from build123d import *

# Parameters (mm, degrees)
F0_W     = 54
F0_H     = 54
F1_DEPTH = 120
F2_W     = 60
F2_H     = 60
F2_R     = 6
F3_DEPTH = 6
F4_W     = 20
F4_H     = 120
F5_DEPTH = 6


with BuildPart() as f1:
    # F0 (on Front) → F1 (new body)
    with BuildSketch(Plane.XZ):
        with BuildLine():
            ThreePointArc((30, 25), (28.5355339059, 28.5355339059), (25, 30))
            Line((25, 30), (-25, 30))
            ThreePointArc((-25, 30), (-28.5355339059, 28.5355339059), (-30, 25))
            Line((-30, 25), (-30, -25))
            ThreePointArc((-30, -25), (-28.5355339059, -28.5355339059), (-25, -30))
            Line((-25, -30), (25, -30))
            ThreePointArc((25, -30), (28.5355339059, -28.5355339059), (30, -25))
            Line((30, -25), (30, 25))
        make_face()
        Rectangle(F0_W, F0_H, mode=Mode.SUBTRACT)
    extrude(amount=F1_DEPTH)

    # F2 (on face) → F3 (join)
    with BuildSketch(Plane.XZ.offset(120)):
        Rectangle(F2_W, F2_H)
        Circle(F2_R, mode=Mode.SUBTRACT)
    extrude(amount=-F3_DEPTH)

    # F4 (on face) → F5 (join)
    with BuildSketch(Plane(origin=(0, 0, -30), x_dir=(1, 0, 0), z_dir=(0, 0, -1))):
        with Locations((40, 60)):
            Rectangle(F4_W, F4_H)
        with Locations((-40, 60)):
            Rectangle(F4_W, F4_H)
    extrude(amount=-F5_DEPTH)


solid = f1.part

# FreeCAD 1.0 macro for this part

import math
import FreeCAD as App
import Part
import Sketcher
from FreeCAD import Vector
Q = App.Units.Quantity

doc = App.newDocument("Part")
body = doc.addObject("PartDesign::Body", "Body")

# Sketch on XZ plane
sketch1 = body.newObject("Sketcher::SketchObject", "Sketch")
sketch1.AttachmentSupport = (doc.getObject("XZ_Plane"), [""])
sketch1.MapMode = "FlatFace"
sketch1.addGeometry(Part.ArcOfCircle(Part.Circle(Vector(25, 25, 0), Vector(0, 0, 1), 5), math.radians(0), math.radians(90)), False)
sketch1.addGeometry(Part.LineSegment(Vector(25, 30, 0), Vector(-25, 30, 0)), False)
sketch1.addGeometry(Part.ArcOfCircle(Part.Circle(Vector(-25, 25, 0), Vector(0, 0, 1), 5), math.radians(90), math.radians(180)), False)
sketch1.addGeometry(Part.LineSegment(Vector(-30, 25, 0), Vector(-30, -25, 0)), False)
sketch1.addGeometry(Part.ArcOfCircle(Part.Circle(Vector(-25, -25, 0), Vector(0, 0, 1), 5), math.radians(180), math.radians(270)), False)
sketch1.addGeometry(Part.LineSegment(Vector(-25, -30, 0), Vector(25, -30, 0)), False)
sketch1.addGeometry(Part.ArcOfCircle(Part.Circle(Vector(25, -25, 0), Vector(0, 0, 1), 5), math.radians(-90), math.radians(0)), False)
sketch1.addGeometry(Part.LineSegment(Vector(30, -25, 0), Vector(30, 25, 0)), False)
sketch1.addGeometry(Part.LineSegment(Vector(27, -27, 0), Vector(-27, -27, 0)), False)
sketch1.addGeometry(Part.LineSegment(Vector(-27, -27, 0), Vector(-27, 27, 0)), False)
sketch1.addGeometry(Part.LineSegment(Vector(-27, 27, 0), Vector(27, 27, 0)), False)
sketch1.addGeometry(Part.LineSegment(Vector(27, 27, 0), Vector(27, -27, 0)), False)
sketch1.addConstraint(Sketcher.Constraint("Tangent", 0, 2, 1, 1))
sketch1.addConstraint(Sketcher.Constraint("Tangent", 1, 2, 2, 1))
sketch1.addConstraint(Sketcher.Constraint("Tangent", 2, 2, 3, 1))
sketch1.addConstraint(Sketcher.Constraint("Tangent", 3, 2, 4, 1))
sketch1.addConstraint(Sketcher.Constraint("Tangent", 4, 2, 5, 1))
sketch1.addConstraint(Sketcher.Constraint("Tangent", 5, 2, 6, 1))
sketch1.addConstraint(Sketcher.Constraint("Tangent", 6, 2, 7, 1))
sketch1.addConstraint(Sketcher.Constraint("Tangent", 7, 2, 0, 1))
sketch1.addConstraint(Sketcher.Constraint("Coincident", 8, 2, 9, 1))
sketch1.addConstraint(Sketcher.Constraint("Coincident", 9, 2, 10, 1))
sketch1.addConstraint(Sketcher.Constraint("Coincident", 10, 2, 11, 1))
sketch1.addConstraint(Sketcher.Constraint("Coincident", 11, 2, 8, 1))
sketch1.addConstraint(Sketcher.Constraint("Horizontal", 1))
sketch1.addConstraint(Sketcher.Constraint("Vertical", 3))
sketch1.addConstraint(Sketcher.Constraint("Horizontal", 5))
sketch1.addConstraint(Sketcher.Constraint("Vertical", 7))
sketch1.addConstraint(Sketcher.Constraint("Horizontal", 8))
sketch1.addConstraint(Sketcher.Constraint("Vertical", 9))
sketch1.addConstraint(Sketcher.Constraint("Horizontal", 10))
sketch1.addConstraint(Sketcher.Constraint("Vertical", 11))
sketch1.addConstraint(Sketcher.Constraint("Equal", 0, 2))
sketch1.addConstraint(Sketcher.Constraint("Equal", 2, 4))
sketch1.addConstraint(Sketcher.Constraint("Equal", 4, 6))
sketch1.addConstraint(Sketcher.Constraint("Symmetric", 0, 3, 4, 3, -1, 1))
sketch1.addConstraint(Sketcher.Constraint("Symmetric", 8, 2, 10, 2, -1, 1))
sketch1.addConstraint(Sketcher.Constraint("Equal", 5, 3))
sketch1.addConstraint(Sketcher.Constraint("Equal", 10, 9))
sketch1.addConstraint(Sketcher.Constraint("Radius", 0, Q("5 mm")))
sketch1.addConstraint(Sketcher.Constraint("DistanceX", 1, 2, 1, 1, Q("50 mm")))
sketch1.addConstraint(Sketcher.Constraint("DistanceX", 8, 2, 8, 1, Q("54 mm")))
pad1 = body.newObject("PartDesign::Pad", "Pad")
pad1.Profile = sketch1
pad1.Length = 120

# Sketch on XZ plane
sketch2 = body.newObject("Sketcher::SketchObject", "Sketch001")
sketch2.AttachmentSupport = (doc.getObject("XZ_Plane"), [""])
sketch2.MapMode = "FlatFace"
sketch2.AttachmentOffset = App.Placement(Vector(0, 0, 120), App.Rotation())
sketch2.addGeometry(Part.LineSegment(Vector(-30, 30, 0), Vector(-30, -30, 0)), False)
sketch2.addGeometry(Part.LineSegment(Vector(-30, -30, 0), Vector(30, -30, 0)), False)
sketch2.addGeometry(Part.LineSegment(Vector(30, -30, 0), Vector(30, 30, 0)), False)
sketch2.addGeometry(Part.LineSegment(Vector(30, 30, 0), Vector(-30, 30, 0)), False)
sketch2.addGeometry(Part.Circle(Vector(0, 0, 0), Vector(0, 0, 1), 6), False)
sketch2.addConstraint(Sketcher.Constraint("Coincident", 0, 2, 1, 1))
sketch2.addConstraint(Sketcher.Constraint("Coincident", 1, 2, 2, 1))
sketch2.addConstraint(Sketcher.Constraint("Coincident", 2, 2, 3, 1))
sketch2.addConstraint(Sketcher.Constraint("Coincident", 3, 2, 0, 1))
sketch2.addConstraint(Sketcher.Constraint("Vertical", 0))
sketch2.addConstraint(Sketcher.Constraint("Horizontal", 1))
sketch2.addConstraint(Sketcher.Constraint("Vertical", 2))
sketch2.addConstraint(Sketcher.Constraint("Horizontal", 3))
sketch2.addConstraint(Sketcher.Constraint("Coincident", 4, 3, -1, 1))
sketch2.addConstraint(Sketcher.Constraint("Symmetric", 0, 2, 2, 2, -1, 1))
sketch2.addConstraint(Sketcher.Constraint("Equal", 3, 0))
sketch2.addConstraint(Sketcher.Constraint("Diameter", 4, Q("12 mm")))
sketch2.addConstraint(Sketcher.Constraint("DistanceX", 1, 1, 1, 2, Q("60 mm")))
pad2 = body.newObject("PartDesign::Pad", "Pad001")
pad2.Profile = sketch2
pad2.Length = 6
pad2.Reversed = True

# Sketch on XY plane
sketch3 = body.newObject("Sketcher::SketchObject", "Sketch002")
sketch3.AttachmentSupport = (doc.getObject("XY_Plane"), [""])
sketch3.MapMode = "FlatFace"
sketch3.AttachmentOffset = App.Placement(Vector(0, 0, -30), App.Rotation())
sketch3.addGeometry(Part.LineSegment(Vector(30, -120, 0), Vector(30, 0, 0)), False)
sketch3.addGeometry(Part.LineSegment(Vector(30, 0, 0), Vector(50, 0, 0)), False)
sketch3.addGeometry(Part.LineSegment(Vector(50, 0, 0), Vector(50, -120, 0)), False)
sketch3.addGeometry(Part.LineSegment(Vector(50, -120, 0), Vector(30, -120, 0)), False)
sketch3.addGeometry(Part.LineSegment(Vector(-50, -120, 0), Vector(-50, 0, 0)), False)
sketch3.addGeometry(Part.LineSegment(Vector(-50, 0, 0), Vector(-30, 0, 0)), False)
sketch3.addGeometry(Part.LineSegment(Vector(-30, 0, 0), Vector(-30, -120, 0)), False)
sketch3.addGeometry(Part.LineSegment(Vector(-30, -120, 0), Vector(-50, -120, 0)), False)
sketch3.addConstraint(Sketcher.Constraint("Coincident", 0, 2, 1, 1))
sketch3.addConstraint(Sketcher.Constraint("Coincident", 1, 2, 2, 1))
sketch3.addConstraint(Sketcher.Constraint("Coincident", 2, 2, 3, 1))
sketch3.addConstraint(Sketcher.Constraint("Coincident", 3, 2, 0, 1))
sketch3.addConstraint(Sketcher.Constraint("Coincident", 4, 2, 5, 1))
sketch3.addConstraint(Sketcher.Constraint("Coincident", 5, 2, 6, 1))
sketch3.addConstraint(Sketcher.Constraint("Coincident", 6, 2, 7, 1))
sketch3.addConstraint(Sketcher.Constraint("Coincident", 7, 2, 4, 1))
sketch3.addConstraint(Sketcher.Constraint("Vertical", 0))
sketch3.addConstraint(Sketcher.Constraint("Horizontal", 1))
sketch3.addConstraint(Sketcher.Constraint("Vertical", 2))
sketch3.addConstraint(Sketcher.Constraint("Horizontal", 3))
sketch3.addConstraint(Sketcher.Constraint("Vertical", 4))
sketch3.addConstraint(Sketcher.Constraint("Horizontal", 5))
sketch3.addConstraint(Sketcher.Constraint("Vertical", 6))
sketch3.addConstraint(Sketcher.Constraint("Horizontal", 7))
sketch3.addConstraint(Sketcher.Constraint("Symmetric", 1, 2, 4, 2, -1, 1))
sketch3.addConstraint(Sketcher.Constraint("Symmetric", 0, 2, 5, 2, -2))
sketch3.addConstraint(Sketcher.Constraint("Horizontal", 3, 2, 6, 2))
sketch3.addConstraint(Sketcher.Constraint("DistanceX", 1, 1, 1, 2, Q("20 mm")))
sketch3.addConstraint(Sketcher.Constraint("DistanceY", 0, 1, 0, 2, Q("120 mm")))
sketch3.addConstraint(Sketcher.Constraint("DistanceX", -1, 1, 0, 2, Q("30 mm")))
pad3 = body.newObject("PartDesign::Pad", "Pad002")
pad3.Profile = sketch3
pad3.Length = 6

doc.recompute()
